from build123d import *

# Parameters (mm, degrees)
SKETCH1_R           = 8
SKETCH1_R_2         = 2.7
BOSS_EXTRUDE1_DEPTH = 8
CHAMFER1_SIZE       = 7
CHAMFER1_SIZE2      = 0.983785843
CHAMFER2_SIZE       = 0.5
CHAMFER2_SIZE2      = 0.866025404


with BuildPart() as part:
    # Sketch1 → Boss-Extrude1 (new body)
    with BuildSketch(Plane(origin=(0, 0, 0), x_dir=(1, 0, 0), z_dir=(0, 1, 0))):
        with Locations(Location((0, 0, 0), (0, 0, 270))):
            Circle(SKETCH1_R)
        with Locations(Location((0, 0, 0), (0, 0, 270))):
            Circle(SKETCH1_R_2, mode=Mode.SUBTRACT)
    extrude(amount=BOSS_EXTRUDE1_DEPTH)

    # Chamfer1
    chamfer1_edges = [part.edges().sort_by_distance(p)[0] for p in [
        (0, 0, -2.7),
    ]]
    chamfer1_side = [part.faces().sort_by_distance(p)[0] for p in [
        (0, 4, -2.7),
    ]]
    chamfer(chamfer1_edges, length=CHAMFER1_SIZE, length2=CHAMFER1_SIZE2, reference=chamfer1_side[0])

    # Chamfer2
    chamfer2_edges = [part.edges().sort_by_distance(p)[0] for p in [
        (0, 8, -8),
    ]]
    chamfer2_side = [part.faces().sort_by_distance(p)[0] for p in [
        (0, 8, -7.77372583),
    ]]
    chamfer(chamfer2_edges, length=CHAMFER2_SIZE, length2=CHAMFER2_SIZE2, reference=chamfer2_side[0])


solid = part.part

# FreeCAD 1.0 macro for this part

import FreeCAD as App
import Part
import Sketcher
from FreeCAD import Vector


def edges_at(feature, points):
    """Names of the edges that pass closest to the given points."""
    edges = feature.Shape.Edges
    near = lambda p: min(range(len(edges)), key=lambda i: edges[i].distToShape(Part.Vertex(*p))[0])
    return sorted({f"Edge{near(p) + 1}" for p in points})

doc = App.newDocument("Part")
body = doc.addObject("PartDesign::Body", "Body")

# Sketch on XZ plane
sketch1 = doc.addObject("Sketcher::SketchObject", "Sketch")
body.addObject(sketch1)
sketch1.AttachmentSupport = (doc.XZ_Plane, [""])
sketch1.MapMode = "FlatFace"
sketch1.addGeometry(Part.Circle(Vector(0, 0, 0), Vector(0, 0, 1), 8), False)
sketch1.addGeometry(Part.Circle(Vector(0, 0, 0), Vector(0, 0, 1), 2.7), False)
sketch1.addConstraint(Sketcher.Constraint("Coincident", 0, 3, -1, 1))
sketch1.addConstraint(Sketcher.Constraint("Coincident", 1, 3, -1, 1))
sketch1.addConstraint(Sketcher.Constraint("Diameter", 0, 16.0))
sketch1.addConstraint(Sketcher.Constraint("Diameter", 1, 5.4))
pad1 = doc.addObject("PartDesign::Pad", "Pad")
body.addObject(pad1)
pad1.Profile = sketch1
pad1.Length = 8
pad1.Reversed = True
doc.recompute()

chamfer = doc.addObject("PartDesign::Chamfer", "Chamfer")
body.addObject(chamfer)
chamfer.Base = (pad1, edges_at(pad1, [(0, 0, -2.7)]))
chamfer.ChamferType = "Two distances"
chamfer.Size = 7
chamfer.Size2 = 0.983786
doc.recompute()

chamfer2 = doc.addObject("PartDesign::Chamfer", "Chamfer001")
body.addObject(chamfer2)
chamfer2.Base = (chamfer, edges_at(chamfer, [(0, 8, -8)]))
chamfer2.ChamferType = "Two distances"
chamfer2.Size = 0.5
chamfer2.Size2 = 0.866025

doc.recompute()
